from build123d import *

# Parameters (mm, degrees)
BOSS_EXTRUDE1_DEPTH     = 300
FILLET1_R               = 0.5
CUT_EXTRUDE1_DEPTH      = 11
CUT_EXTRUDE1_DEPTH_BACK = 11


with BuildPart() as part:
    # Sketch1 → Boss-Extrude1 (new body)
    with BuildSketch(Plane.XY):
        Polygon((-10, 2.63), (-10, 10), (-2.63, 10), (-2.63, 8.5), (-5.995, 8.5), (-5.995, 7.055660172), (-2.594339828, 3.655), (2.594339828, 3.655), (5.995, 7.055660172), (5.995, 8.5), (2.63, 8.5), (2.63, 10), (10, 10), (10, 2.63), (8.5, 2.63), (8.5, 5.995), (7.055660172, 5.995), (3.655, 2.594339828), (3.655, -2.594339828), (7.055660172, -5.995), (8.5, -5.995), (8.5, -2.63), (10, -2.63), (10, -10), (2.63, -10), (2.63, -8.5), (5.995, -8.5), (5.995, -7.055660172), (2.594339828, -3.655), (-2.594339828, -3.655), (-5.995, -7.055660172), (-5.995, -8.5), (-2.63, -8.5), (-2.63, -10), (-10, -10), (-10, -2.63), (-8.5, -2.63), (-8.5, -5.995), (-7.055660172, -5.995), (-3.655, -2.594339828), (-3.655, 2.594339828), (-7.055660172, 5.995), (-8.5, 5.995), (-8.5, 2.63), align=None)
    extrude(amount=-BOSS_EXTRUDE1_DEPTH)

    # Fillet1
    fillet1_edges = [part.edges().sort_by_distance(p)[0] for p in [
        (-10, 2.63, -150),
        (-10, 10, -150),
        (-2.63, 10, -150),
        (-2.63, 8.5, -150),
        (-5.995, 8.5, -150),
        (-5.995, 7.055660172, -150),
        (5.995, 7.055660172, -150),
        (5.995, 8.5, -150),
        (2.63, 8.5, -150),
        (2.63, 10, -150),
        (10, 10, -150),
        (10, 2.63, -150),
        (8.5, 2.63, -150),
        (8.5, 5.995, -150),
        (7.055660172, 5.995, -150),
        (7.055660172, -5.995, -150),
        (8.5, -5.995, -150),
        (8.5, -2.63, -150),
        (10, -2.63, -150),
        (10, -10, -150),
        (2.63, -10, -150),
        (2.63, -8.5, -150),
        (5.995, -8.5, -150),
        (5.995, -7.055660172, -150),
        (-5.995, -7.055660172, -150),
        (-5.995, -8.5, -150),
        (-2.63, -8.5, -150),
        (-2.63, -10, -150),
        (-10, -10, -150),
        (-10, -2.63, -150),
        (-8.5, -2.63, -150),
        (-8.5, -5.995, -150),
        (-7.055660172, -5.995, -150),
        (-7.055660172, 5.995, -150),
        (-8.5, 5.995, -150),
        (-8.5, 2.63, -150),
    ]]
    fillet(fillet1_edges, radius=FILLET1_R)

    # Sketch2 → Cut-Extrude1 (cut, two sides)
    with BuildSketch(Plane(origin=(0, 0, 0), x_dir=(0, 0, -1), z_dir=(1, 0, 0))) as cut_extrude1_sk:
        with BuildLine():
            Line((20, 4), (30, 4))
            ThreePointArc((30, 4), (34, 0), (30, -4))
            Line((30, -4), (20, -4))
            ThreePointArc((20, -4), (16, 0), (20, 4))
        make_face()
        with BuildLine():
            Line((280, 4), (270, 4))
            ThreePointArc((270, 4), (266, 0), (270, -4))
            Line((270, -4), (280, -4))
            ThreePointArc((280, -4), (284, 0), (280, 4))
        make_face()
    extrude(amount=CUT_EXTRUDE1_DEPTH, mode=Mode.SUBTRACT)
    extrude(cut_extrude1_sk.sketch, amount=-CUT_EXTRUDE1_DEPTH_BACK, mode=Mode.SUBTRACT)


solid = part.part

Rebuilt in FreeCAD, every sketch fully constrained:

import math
import FreeCAD as App
import Part
import Sketcher


def edges_at(feature, points):
    """Names of the edges that pass closest to the given points."""
    edges = feature.Shape.Edges
    near = lambda p: min(range(len(edges)), key=lambda i: edges[i].distToShape(Part.Vertex(*p))[0])
    return sorted({f"Edge{near(p) + 1}" for p in points})


def add_polygon(sketch, points):
    """Adds a closed chain of lines whose ends are joined by coincident constraints."""
    first, n = sketch.GeometryCount, len(points)
    for a, b in zip(points, points[1:] + points[:1]):
        sketch.addGeometry(Part.LineSegment(App.Vector(*a, 0), App.Vector(*b, 0)), False)
    for i in range(n):
        sketch.addConstraint(Sketcher.Constraint("Coincident", first + i, 2, first + (i + 1) % n, 1))

doc = App.newDocument("Part")
params = doc.addObject("Spreadsheet::Sheet", "Params")
for row, (alias, value) in enumerate([
    ("sketch1_width", "1.5 mm"),
    ("sketch1_width2", "7.37 mm"),
    ("pad1_length", "300 mm"),
    ("fillet_radius", "0.5 mm"),
    ("sketch2_radius", "4 mm"),
    ("sketch2_height", "10 mm"),
], start=1):
    params.set(f"A{row}", alias)
    params.set(f"B{row}", "=" + value)
    params.setAlias(f"B{row}", alias)

body = doc.addObject("PartDesign::Body", "Body")

# Sketch on XY plane
sketch1 = body.newObject("Sketcher::SketchObject", "Sketch")
sketch1.AttachmentSupport = (doc.getObject("XY_Plane"), [""])
sketch1.MapMode = "FlatFace"
add_polygon(sketch1, [(-10, 10), (-10, 2.6), (-8.5, 2.6), (-8.5, 6), (-7.1, 6), (-3.7, 2.6), (-3.7, -2.6), (-7.1, -6), (-8.5, -6), (-8.5, -2.6), (-10, -2.6), (-10, -10), (-2.6, -10), (-2.6, -8.5), (-6, -8.5), (-6, -7.1), (-2.6, -3.7), (2.6, -3.7), (6, -7.1), (6, -8.5), (2.6, -8.5), (2.6, -10), (10, -10), (10, -2.6), (8.5, -2.6), (8.5, -6), (7.1, -6), (3.7, -2.6), (3.7, 2.6), (7.1, 6), (8.5, 6), (8.5, 2.6), (10, 2.6), (10, 10), (2.6, 10), (2.6, 8.5), (6, 8.5), (6, 7.1), (2.6, 3.7), (-2.6, 3.7), (-6, 7.1), (-6, 8.5), (-2.6, 8.5), (-2.6, 10)])  # lines 0-43
sketch1.addConstraint([
    Sketcher.Constraint("Vertical", 0),
    Sketcher.Constraint("Horizontal", 1),
    Sketcher.Constraint("Vertical", 2),
    Sketcher.Constraint("Horizontal", 3),
    Sketcher.Constraint("Vertical", 5),
    Sketcher.Constraint("Horizontal", 7),
    Sketcher.Constraint("Vertical", 8),
    Sketcher.Constraint("Horizontal", 9),
    Sketcher.Constraint("Vertical", 10),
    Sketcher.Constraint("Horizontal", 11),
    Sketcher.Constraint("Vertical", 12),
    Sketcher.Constraint("Horizontal", 13),
    Sketcher.Constraint("Vertical", 14),
    Sketcher.Constraint("Horizontal", 16),
    Sketcher.Constraint("Vertical", 18),
    Sketcher.Constraint("Horizontal", 19),
    Sketcher.Constraint("Vertical", 20),
    Sketcher.Constraint("Horizontal", 21),
    Sketcher.Constraint("Vertical", 22),
    Sketcher.Constraint("Horizontal", 23),
    Sketcher.Constraint("Vertical", 24),
    Sketcher.Constraint("Horizontal", 25),
    Sketcher.Constraint("Vertical", 27),
    Sketcher.Constraint("Horizontal", 29),
    Sketcher.Constraint("Vertical", 30),
    Sketcher.Constraint("Horizontal", 31),
    Sketcher.Constraint("Vertical", 32),
    Sketcher.Constraint("Horizontal", 33),
    Sketcher.Constraint("Vertical", 34),
    Sketcher.Constraint("Horizontal", 35),
    Sketcher.Constraint("Vertical", 36),
    Sketcher.Constraint("Horizontal", 38),
    Sketcher.Constraint("Vertical", 40),
    Sketcher.Constraint("Horizontal", 41),
    Sketcher.Constraint("Vertical", 42),
    Sketcher.Constraint("Horizontal", 43),
    Sketcher.Constraint("Symmetric", 0, 2, 22, 2, -1, 1),
    Sketcher.Constraint("Symmetric", 2, 2, 24, 2, -1, 1),
    Sketcher.Constraint("Symmetric", 4, 2, 26, 2, -1, 1),
    Sketcher.Constraint("Symmetric", 6, 2, 28, 2, -1, 1),
    Sketcher.Constraint("Symmetric", 8, 2, 30, 2, -1, 1),
    Sketcher.Constraint("Symmetric", 10, 2, 32, 2, -1, 1),
    Sketcher.Constraint("Symmetric", 12, 2, 34, 2, -1, 1),
    Sketcher.Constraint("Symmetric", 14, 2, 36, 2, -1, 1),
    Sketcher.Constraint("Symmetric", 15, 2, 37, 2, -1, 1),
    Sketcher.Constraint("Symmetric", 17, 2, 39, 2, -1, 1),
    Sketcher.Constraint("Symmetric", 19, 2, 41, 2, -1, 1),
    Sketcher.Constraint("Symmetric", 14, 2, 17, 2, -2),
    Sketcher.Constraint("Symmetric", 12, 2, 19, 2, -2),
    Sketcher.Constraint("Symmetric", 10, 2, 21, 2, -2),
    Sketcher.Constraint("Symmetric", 8, 2, 23, 2, -2),
    Sketcher.Constraint("Symmetric", 6, 2, 25, 2, -2),
    Sketcher.Constraint("Perpendicular", 4, 6),
    Sketcher.Constraint("Parallel", 6, 15),
    Sketcher.Constraint("Perpendicular", 15, 17),
    Sketcher.Constraint("Parallel", 17, 26),
    Sketcher.Constraint("Perpendicular", 26, 28),
    Sketcher.Constraint("Perpendicular", 37, 39),
    Sketcher.Constraint("Horizontal", 5, 2, 26, 2),
    Sketcher.Constraint("Horizontal", 33, 2, 42, 2),
    Sketcher.Constraint("Equal", 43, 0),
    Sketcher.Constraint("Equal", 41, 2),
    Sketcher.Constraint("Equal", 38, 5),
    Sketcher.Constraint("Equal", 31, 12),
    Sketcher.Constraint("Equal", 29, 14),
    Sketcher.Constraint("Equal", 6, 15),
    Sketcher.Constraint("DistanceX", 1, 1, 1, 2, 1.5),
    Sketcher.Constraint("DistanceX", 0, 2, -1, 1, 10.0),
    Sketcher.Constraint("DistanceX", 11, 1, 11, 2, 7.37),
    Sketcher.Constraint("DistanceX", 13, 2, 13, 1, 3.365),
    Sketcher.Constraint("DistanceY", 6, 2, 15, 2, 2.34),
    Sketcher.Constraint("DistanceX", 3, 1, 3, 2, 1.44434),
])
sketch1.setExpression("Constraints[110]", "Params.sketch1_width")
sketch1.setExpression("Constraints[112]", "Params.sketch1_width2")
pad1 = body.newObject("PartDesign::Pad", "Pad")
pad1.Profile = sketch1
pad1.setExpression("Length", "Params.pad1_length")
pad1.Reversed = True
doc.recompute()

fillet = body.newObject("PartDesign::Fillet", "Fillet")
fillet.Base = (pad1, edges_at(pad1, [
    (-10, 2.63, -150),
    (-10, 10, -150),
    (-2.63, 10, -150),
    (-2.63, 8.5, -150),
    (-5.995, 8.5, -150),
    (-5.995, 7.056, -150),
    (5.995, 7.056, -150),
    (5.995, 8.5, -150),
    (2.63, 8.5, -150),
    (2.63, 10, -150),
    (10, 10, -150),
    (10, 2.63, -150),
    (8.5, 2.63, -150),
    (8.5, 5.995, -150),
    (7.056, 5.995, -150),
    (7.056, -5.995, -150),
    (8.5, -5.995, -150),
    (8.5, -2.63, -150),
    (10, -2.63, -150),
    (10, -10, -150),
    (2.63, -10, -150),
    (2.63, -8.5, -150),
    (5.995, -8.5, -150),
    (5.995, -7.056, -150),
    (-5.995, -7.056, -150),
    (-5.995, -8.5, -150),
    (-2.63, -8.5, -150),
    (-2.63, -10, -150),
    (-10, -10, -150),
    (-10, -2.63, -150),
    (-8.5, -2.63, -150),
    (-8.5, -5.995, -150),
    (-7.056, -5.995, -150),
    (-7.056, 5.995, -150),
    (-8.5, 5.995, -150),
    (-8.5, 2.63, -150),
]))
fillet.setExpression("Radius", "Params.fillet_radius")

# Sketch on YZ plane
sketch2 = body.newObject("Sketcher::SketchObject", "Sketch001")
sketch2.AttachmentSupport = (doc.getObject("YZ_Plane"), [""])
sketch2.MapMode = "FlatFace"
sketch2.addGeometry([
    Part.LineSegment(App.Vector(4, -30, 0), App.Vector(4, -20, 0)),  # 0
    Part.ArcOfCircle(Part.Circle(App.Vector(0, -20, 0), App.Vector(0, 0, 1), 4), math.radians(0), math.radians(180)),  # 1
    Part.LineSegment(App.Vector(-4, -20, 0), App.Vector(-4, -30, 0)),  # 2
    Part.ArcOfCircle(Part.Circle(App.Vector(0, -30, 0), App.Vector(0, 0, 1), 4), math.radians(180), math.radians(360)),  # 3
    Part.LineSegment(App.Vector(4, -280, 0), App.Vector(4, -270, 0)),  # 4
    Part.ArcOfCircle(Part.Circle(App.Vector(0, -270, 0), App.Vector(0, 0, 1), 4), math.radians(0), math.radians(180)),  # 5
    Part.LineSegment(App.Vector(-4, -270, 0), App.Vector(-4, -280, 0)),  # 6
    Part.ArcOfCircle(Part.Circle(App.Vector(0, -280, 0), App.Vector(0, 0, 1), 4), math.radians(180), math.radians(360)),  # 7
], False)
sketch2.addConstraint([
    Sketcher.Constraint("Tangent", 0, 2, 1, 1),
    Sketcher.Constraint("Tangent", 1, 2, 2, 1),
    Sketcher.Constraint("Tangent", 2, 2, 3, 1),
    Sketcher.Constraint("Tangent", 3, 2, 0, 1),
    Sketcher.Constraint("Tangent", 4, 2, 5, 1),
    Sketcher.Constraint("Tangent", 5, 2, 6, 1),
    Sketcher.Constraint("Tangent", 6, 2, 7, 1),
    Sketcher.Constraint("Tangent", 7, 2, 4, 1),
    Sketcher.Constraint("Vertical", 0),
    Sketcher.Constraint("Vertical", 2),
    Sketcher.Constraint("Vertical", 4),
    Sketcher.Constraint("Vertical", 6),
    Sketcher.Constraint("Equal", 3, 5),
    Sketcher.Constraint("PointOnObject", 1, 3, -2),
    Sketcher.Constraint("PointOnObject", 5, 3, -2),
    Sketcher.Constraint("Equal", 2, 4),
    Sketcher.Constraint("Radius", 1, 4.0),
    Sketcher.Constraint("DistanceY", 0, 1, 0, 2, 10.0),
    Sketcher.Constraint("DistanceY", 1, 3, -1, 1, 20.0),
    Sketcher.Constraint("DistanceY", 5, 3, -1, 1, 270.0),
])
sketch2.setExpression("Constraints[16]", "Params.sketch2_radius")
sketch2.setExpression("Constraints[17]", "Params.sketch2_height")
pocket1 = body.newObject("PartDesign::Pocket", "Pocket")
pocket1.Profile = sketch2
pocket1.Type = "ThroughAll"
pocket1.Midplane = True

doc.recompute()
